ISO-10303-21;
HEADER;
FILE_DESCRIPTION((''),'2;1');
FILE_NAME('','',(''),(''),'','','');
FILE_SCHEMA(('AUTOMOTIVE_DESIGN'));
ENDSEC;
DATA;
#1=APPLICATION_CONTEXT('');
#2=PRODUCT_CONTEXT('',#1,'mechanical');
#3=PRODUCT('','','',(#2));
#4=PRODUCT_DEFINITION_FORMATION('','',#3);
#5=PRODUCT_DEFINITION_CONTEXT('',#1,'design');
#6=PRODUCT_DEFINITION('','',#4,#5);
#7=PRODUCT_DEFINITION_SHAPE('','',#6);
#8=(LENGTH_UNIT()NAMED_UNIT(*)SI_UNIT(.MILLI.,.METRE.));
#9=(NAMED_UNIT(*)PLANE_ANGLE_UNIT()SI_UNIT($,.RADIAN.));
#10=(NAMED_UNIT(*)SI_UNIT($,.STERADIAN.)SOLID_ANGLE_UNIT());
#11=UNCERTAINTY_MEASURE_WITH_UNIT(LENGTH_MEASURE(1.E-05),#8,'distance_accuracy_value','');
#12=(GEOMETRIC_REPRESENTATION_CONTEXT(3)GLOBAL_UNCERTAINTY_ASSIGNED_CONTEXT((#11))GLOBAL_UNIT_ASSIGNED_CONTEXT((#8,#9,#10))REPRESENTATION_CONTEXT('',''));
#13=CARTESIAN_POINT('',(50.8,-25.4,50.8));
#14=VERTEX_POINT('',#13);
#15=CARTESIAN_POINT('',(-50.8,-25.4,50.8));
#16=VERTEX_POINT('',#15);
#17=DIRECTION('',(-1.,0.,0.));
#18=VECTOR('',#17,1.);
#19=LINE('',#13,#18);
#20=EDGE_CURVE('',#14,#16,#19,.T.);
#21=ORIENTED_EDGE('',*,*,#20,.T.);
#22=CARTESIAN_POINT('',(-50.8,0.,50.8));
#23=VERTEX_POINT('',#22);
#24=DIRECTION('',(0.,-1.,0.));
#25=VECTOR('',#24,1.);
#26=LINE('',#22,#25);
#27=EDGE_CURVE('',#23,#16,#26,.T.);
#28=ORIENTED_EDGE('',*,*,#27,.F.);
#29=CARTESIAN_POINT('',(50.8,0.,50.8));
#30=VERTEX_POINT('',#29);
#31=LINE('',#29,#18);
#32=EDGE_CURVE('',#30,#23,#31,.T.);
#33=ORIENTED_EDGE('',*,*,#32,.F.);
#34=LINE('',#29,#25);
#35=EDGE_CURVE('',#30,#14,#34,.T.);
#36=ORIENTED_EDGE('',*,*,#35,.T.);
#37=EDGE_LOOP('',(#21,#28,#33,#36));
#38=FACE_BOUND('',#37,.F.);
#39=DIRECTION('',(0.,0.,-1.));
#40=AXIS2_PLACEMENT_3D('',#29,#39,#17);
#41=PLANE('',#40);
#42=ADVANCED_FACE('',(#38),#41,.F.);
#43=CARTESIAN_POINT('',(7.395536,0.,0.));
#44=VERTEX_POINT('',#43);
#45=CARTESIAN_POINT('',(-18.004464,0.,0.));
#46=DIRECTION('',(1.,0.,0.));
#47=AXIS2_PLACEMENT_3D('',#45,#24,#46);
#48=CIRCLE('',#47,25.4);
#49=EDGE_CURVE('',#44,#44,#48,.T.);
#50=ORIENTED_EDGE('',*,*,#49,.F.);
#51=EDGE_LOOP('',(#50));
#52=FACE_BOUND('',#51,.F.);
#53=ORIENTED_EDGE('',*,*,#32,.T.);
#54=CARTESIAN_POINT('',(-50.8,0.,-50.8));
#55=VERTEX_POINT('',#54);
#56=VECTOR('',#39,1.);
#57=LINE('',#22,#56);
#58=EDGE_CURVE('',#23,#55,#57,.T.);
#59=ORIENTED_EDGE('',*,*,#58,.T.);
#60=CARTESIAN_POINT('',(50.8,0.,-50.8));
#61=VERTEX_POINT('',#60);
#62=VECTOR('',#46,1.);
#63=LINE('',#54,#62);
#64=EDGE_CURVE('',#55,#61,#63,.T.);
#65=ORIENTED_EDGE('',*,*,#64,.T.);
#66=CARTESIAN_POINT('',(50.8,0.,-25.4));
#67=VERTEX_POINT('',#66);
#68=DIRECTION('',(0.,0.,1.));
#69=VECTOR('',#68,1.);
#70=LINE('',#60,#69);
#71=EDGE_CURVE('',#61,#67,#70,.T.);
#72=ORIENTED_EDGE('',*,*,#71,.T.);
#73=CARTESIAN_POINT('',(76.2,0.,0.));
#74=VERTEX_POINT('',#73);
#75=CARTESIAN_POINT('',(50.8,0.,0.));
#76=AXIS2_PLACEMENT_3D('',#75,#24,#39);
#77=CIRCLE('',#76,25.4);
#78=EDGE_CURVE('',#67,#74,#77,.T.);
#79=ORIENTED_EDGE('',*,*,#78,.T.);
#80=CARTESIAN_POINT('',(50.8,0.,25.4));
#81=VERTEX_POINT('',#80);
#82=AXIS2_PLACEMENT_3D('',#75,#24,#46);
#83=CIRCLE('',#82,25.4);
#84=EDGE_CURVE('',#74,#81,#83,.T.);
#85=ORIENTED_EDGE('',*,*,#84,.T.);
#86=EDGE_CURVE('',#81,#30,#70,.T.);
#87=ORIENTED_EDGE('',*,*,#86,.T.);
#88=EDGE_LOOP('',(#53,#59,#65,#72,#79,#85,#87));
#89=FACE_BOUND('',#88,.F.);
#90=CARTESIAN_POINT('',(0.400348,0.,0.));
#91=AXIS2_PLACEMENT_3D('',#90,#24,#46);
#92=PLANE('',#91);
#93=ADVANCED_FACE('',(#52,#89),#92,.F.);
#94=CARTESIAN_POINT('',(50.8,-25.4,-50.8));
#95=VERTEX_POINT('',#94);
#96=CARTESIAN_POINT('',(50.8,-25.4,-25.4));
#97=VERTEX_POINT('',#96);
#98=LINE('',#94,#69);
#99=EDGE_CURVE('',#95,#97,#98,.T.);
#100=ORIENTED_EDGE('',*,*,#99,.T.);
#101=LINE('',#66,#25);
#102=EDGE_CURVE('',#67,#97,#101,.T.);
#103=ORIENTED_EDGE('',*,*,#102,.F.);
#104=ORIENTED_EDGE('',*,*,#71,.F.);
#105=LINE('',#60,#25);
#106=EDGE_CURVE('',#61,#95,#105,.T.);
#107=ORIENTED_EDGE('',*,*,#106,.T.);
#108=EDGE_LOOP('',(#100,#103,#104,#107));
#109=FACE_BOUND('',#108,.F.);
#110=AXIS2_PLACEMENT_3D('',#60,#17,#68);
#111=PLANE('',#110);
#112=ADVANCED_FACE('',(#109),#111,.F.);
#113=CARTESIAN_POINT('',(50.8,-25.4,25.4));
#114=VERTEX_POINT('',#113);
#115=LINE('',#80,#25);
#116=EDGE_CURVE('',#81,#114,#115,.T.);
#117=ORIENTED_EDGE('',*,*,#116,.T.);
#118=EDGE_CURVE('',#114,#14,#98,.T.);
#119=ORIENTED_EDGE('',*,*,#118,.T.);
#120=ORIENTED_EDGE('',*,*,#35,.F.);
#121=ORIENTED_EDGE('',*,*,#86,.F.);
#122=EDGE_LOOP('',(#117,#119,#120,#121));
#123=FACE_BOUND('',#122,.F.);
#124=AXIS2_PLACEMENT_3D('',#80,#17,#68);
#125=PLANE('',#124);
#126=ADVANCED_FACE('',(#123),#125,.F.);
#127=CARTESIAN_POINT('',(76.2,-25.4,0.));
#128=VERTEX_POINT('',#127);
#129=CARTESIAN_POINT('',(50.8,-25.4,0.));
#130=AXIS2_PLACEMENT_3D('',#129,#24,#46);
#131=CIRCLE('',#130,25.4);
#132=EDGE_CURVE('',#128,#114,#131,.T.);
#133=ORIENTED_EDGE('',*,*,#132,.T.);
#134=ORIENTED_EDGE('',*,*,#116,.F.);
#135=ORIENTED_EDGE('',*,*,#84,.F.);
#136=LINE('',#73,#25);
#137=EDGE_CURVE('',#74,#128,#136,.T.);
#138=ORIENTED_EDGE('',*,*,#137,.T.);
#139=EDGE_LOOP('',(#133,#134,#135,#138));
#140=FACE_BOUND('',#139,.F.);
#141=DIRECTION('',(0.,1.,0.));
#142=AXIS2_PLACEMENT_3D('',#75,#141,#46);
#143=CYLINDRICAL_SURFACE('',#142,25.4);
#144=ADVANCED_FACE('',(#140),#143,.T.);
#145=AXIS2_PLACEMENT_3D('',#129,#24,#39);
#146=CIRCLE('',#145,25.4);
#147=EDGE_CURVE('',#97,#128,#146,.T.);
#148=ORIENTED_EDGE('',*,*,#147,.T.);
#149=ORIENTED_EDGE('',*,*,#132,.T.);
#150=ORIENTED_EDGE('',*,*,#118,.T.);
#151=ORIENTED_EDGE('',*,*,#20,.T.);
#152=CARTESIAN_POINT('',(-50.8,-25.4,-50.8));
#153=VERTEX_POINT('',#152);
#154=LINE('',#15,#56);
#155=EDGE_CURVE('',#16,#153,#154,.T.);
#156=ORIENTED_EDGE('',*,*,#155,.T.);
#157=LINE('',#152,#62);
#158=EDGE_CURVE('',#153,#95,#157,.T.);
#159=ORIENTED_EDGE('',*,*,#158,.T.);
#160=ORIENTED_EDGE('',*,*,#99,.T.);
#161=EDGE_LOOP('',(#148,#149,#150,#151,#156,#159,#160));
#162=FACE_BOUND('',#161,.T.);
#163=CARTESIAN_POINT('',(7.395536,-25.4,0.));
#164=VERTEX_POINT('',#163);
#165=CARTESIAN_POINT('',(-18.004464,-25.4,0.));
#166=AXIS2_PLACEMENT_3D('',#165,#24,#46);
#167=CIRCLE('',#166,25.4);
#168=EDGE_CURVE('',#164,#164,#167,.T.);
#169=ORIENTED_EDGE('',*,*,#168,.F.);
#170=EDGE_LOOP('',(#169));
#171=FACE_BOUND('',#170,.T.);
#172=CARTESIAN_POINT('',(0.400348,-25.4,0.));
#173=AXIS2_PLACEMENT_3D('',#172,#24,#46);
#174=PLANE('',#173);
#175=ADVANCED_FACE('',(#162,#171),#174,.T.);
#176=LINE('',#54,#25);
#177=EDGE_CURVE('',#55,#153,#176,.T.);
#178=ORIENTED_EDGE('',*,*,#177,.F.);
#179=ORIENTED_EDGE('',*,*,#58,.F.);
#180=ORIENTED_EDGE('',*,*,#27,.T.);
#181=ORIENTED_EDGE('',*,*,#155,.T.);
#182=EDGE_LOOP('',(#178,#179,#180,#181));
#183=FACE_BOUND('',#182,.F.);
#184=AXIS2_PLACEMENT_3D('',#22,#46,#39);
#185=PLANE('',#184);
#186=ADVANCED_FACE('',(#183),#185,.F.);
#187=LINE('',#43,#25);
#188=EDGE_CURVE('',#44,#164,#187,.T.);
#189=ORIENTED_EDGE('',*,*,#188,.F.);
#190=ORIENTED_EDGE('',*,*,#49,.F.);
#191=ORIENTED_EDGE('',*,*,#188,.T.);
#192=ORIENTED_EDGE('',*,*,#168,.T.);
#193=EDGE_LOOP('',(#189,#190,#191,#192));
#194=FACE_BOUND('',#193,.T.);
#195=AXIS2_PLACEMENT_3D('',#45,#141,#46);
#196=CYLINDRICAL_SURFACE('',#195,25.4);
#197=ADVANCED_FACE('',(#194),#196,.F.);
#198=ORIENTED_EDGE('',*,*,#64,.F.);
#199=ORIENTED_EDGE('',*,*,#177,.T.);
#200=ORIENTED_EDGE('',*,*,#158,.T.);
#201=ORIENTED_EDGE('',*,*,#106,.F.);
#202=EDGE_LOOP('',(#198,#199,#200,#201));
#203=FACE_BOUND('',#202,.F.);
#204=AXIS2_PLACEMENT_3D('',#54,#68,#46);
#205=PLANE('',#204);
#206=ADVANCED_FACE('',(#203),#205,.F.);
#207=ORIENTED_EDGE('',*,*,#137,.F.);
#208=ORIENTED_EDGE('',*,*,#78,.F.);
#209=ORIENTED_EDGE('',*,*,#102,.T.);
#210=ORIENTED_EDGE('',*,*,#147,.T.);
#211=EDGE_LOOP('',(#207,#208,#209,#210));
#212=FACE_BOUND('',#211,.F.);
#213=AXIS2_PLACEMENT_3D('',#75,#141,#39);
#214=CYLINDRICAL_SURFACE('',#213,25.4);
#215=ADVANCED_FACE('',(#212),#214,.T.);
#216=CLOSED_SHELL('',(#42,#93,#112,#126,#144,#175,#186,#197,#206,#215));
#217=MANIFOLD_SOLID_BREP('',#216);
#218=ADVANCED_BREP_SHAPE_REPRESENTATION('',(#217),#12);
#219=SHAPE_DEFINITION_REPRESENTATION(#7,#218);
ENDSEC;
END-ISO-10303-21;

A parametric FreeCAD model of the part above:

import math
import FreeCAD as App
import Part
import Sketcher

V = App.Vector
Q = App.Units.Quantity

doc = App.newDocument("Part")
body = doc.addObject("PartDesign::Body", "Body")

# Sketch on XZ plane
sketch1 = body.newObject("Sketcher::SketchObject", "Sketch")
sketch1.AttachmentSupport = (doc.getObject("XZ_Plane"), [""])
sketch1.MapMode = "FlatFace"
sketch1.addGeometry(Part.LineSegment(V(-50.8, -50.8, 0), V(50.8, -50.8, 0)), False)
sketch1.addGeometry(Part.LineSegment(V(50.8, -50.8, 0), V(50.8, -25.4, 0)), False)
sketch1.addGeometry(Part.ArcOfCircle(Part.Circle(V(50.8, 0, 0), V(0, 0, 1), 25.4), math.radians(-90), math.radians(0)), False)
sketch1.addGeometry(Part.ArcOfCircle(Part.Circle(V(50.8, 0, 0), V(0, 0, 1), 25.4), math.radians(0), math.radians(90)), False)
sketch1.addGeometry(Part.LineSegment(V(50.8, 25.4, 0), V(50.8, 50.8, 0)), False)
sketch1.addGeometry(Part.LineSegment(V(50.8, 50.8, 0), V(-50.8, 50.8, 0)), False)
sketch1.addGeometry(Part.LineSegment(V(-50.8, 50.8, 0), V(-50.8, -50.8, 0)), False)
sketch1.addGeometry(Part.Circle(V(-18.004464, 0, 0), V(0, 0, 1), 25.4), False)
sketch1.addConstraint(Sketcher.Constraint("Coincident", 0, 2, 1, 1))
sketch1.addConstraint(Sketcher.Constraint("Coincident", 1, 2, 2, 1))
sketch1.addConstraint(Sketcher.Constraint("Tangent", 2, 2, 3, 1))
sketch1.addConstraint(Sketcher.Constraint("Coincident", 3, 2, 4, 1))
sketch1.addConstraint(Sketcher.Constraint("Coincident", 4, 2, 5, 1))
sketch1.addConstraint(Sketcher.Constraint("Coincident", 5, 2, 6, 1))
sketch1.addConstraint(Sketcher.Constraint("Coincident", 6, 2, 0, 1))
sketch1.addConstraint(Sketcher.Constraint("Horizontal", 0))
sketch1.addConstraint(Sketcher.Constraint("Vertical", 1))
sketch1.addConstraint(Sketcher.Constraint("Vertical", 4))
sketch1.addConstraint(Sketcher.Constraint("Horizontal", 5))
sketch1.addConstraint(Sketcher.Constraint("Vertical", 6))
sketch1.addConstraint(Sketcher.Constraint("Equal", 2, 3))
sketch1.addConstraint(Sketcher.Constraint("Equal", 3, 7))
sketch1.addConstraint(Sketcher.Constraint("Symmetric", 0, 2, 5, 2, -1, 1))
sketch1.addConstraint(Sketcher.Constraint("Symmetric", 1, 2, 3, 2, -1))
sketch1.addConstraint(Sketcher.Constraint("PointOnObject", 7, 3, -1))
sketch1.addConstraint(Sketcher.Constraint("PointOnObject", 2, 2, -1))
sketch1.addConstraint(Sketcher.Constraint("Vertical", 3, 3, 0, 2))
sketch1.addConstraint(Sketcher.Constraint("Equal", 5, 6))
sketch1.addConstraint(Sketcher.Constraint("Diameter", 7, Q("2 in")))
sketch1.addConstraint(Sketcher.Constraint("DistanceX", 0, 1, 0, 2, Q("4 in")))
sketch1.addConstraint(Sketcher.Constraint("DistanceX", 7, 3, -1, 1, Q("18.004464 mm")))
pad1 = body.newObject("PartDesign::Pad", "Pad")
pad1.Profile = sketch1
pad1.Length = Q("1 in")

doc.recompute()
